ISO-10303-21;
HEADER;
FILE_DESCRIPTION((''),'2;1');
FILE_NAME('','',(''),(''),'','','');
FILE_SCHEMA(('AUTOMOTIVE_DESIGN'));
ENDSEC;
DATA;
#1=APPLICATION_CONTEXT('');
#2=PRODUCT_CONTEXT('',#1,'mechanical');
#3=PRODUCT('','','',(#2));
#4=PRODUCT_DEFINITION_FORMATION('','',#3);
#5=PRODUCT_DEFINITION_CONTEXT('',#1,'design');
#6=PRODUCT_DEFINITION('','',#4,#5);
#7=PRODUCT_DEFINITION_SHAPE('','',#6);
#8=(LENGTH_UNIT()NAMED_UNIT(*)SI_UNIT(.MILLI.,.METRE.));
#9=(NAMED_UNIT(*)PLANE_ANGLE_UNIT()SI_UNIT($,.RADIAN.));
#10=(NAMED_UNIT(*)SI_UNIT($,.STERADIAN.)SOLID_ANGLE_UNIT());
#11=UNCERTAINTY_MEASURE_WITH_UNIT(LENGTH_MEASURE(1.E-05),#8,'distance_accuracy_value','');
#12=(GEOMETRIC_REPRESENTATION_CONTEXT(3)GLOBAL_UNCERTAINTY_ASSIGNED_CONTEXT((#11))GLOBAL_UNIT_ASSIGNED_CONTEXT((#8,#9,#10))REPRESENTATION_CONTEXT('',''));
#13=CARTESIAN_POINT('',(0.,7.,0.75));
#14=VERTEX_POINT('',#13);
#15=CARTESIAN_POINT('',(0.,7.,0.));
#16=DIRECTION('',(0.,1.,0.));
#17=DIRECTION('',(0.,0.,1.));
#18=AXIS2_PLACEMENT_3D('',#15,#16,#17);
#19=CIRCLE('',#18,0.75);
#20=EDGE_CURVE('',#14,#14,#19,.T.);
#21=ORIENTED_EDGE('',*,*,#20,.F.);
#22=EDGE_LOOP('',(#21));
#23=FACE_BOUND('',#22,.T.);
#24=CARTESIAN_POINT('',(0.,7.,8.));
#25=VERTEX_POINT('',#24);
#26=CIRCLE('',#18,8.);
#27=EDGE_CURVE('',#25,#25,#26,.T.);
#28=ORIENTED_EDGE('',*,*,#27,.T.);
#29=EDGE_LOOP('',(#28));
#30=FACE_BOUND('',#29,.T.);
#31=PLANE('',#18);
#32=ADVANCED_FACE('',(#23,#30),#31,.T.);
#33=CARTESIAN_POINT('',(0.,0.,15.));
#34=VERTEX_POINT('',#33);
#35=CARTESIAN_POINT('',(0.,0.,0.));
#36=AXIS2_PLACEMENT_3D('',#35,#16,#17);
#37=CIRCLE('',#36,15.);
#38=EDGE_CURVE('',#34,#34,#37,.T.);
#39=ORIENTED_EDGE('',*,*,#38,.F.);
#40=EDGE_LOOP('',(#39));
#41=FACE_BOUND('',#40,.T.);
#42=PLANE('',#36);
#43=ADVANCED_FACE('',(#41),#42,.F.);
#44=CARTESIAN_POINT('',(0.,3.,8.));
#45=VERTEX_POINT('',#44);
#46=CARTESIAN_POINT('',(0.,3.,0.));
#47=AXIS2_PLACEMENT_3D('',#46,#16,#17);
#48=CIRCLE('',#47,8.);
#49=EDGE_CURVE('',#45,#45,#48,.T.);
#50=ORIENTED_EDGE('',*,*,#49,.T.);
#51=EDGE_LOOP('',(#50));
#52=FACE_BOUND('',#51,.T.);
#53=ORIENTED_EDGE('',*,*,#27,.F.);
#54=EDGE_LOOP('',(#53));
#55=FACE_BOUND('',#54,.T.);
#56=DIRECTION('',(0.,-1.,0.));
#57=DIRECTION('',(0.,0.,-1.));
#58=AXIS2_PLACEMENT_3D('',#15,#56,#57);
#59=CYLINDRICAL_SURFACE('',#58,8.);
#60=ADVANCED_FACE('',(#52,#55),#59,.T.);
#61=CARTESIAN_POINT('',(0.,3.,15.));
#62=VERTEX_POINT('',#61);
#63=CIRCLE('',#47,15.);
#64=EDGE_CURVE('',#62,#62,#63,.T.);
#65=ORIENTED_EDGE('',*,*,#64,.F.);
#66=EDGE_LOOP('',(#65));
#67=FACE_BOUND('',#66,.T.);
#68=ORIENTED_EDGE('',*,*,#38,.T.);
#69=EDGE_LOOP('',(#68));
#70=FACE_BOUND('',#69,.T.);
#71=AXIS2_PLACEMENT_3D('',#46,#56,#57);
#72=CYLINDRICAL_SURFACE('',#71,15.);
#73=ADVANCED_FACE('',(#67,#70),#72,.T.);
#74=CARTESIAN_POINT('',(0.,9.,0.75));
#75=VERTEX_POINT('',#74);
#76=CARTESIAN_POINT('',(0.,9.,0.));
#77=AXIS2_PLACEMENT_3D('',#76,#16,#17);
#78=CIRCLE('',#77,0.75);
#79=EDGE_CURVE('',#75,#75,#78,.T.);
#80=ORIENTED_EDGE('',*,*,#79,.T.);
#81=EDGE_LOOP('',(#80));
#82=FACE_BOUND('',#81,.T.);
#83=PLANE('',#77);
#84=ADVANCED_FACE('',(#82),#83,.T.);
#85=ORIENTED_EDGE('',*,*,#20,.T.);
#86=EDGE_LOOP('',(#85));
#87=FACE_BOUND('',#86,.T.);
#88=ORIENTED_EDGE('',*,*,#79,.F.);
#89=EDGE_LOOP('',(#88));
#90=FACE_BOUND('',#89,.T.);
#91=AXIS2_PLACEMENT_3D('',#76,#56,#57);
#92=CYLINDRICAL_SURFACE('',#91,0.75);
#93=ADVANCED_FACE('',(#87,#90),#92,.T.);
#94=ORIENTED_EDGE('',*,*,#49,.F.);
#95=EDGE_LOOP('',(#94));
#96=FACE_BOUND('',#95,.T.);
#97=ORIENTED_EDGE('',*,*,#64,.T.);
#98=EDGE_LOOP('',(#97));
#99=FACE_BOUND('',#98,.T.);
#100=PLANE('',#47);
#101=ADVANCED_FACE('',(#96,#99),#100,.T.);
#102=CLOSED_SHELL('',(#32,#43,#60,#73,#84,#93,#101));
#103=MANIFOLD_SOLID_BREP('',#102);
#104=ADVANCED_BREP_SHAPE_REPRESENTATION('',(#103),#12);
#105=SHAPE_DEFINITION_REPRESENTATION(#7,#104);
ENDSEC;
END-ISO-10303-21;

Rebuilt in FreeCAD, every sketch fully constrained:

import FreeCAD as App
import Part
import Sketcher

doc = App.newDocument("Part")
body = doc.addObject("PartDesign::Body", "Body")

# Sketch on XZ plane
sketch1 = body.newObject("Sketcher::SketchObject", "Sketch")
sketch1.AttachmentSupport = (doc.getObject("XZ_Plane"), [""])
sketch1.MapMode = "FlatFace"
sketch1.addGeometry(Part.Circle(App.Vector(0, 0, 0), App.Vector(0, 0, 1), 15), False)
sketch1.addConstraint([
    Sketcher.Constraint("Coincident", 0, 3, -1, 1),
    Sketcher.Constraint("Diameter", 0, 30.0),
])
pad1 = body.newObject("PartDesign::Pad", "Pad")
pad1.Profile = sketch1
pad1.Length = 3
pad1.Reversed = True

# Sketch on XZ plane
sketch2 = body.newObject("Sketcher::SketchObject", "Sketch001")
sketch2.AttachmentSupport = (doc.getObject("XZ_Plane"), [""])
sketch2.MapMode = "FlatFace"
sketch2.AttachmentOffset = App.Placement(App.Vector(0, 0, -3), App.Rotation())
sketch2.addGeometry(Part.Circle(App.Vector(0, 0, 0), App.Vector(0, 0, 1), 8), False)
sketch2.addConstraint([
    Sketcher.Constraint("Coincident", 0, 3, -1, 1),
    Sketcher.Constraint("Diameter", 0, 16.0),
])
pad2 = body.newObject("PartDesign::Pad", "Pad001")
pad2.Profile = sketch2
pad2.Length = 4
pad2.Reversed = True

# Sketch on XZ plane
sketch3 = body.newObject("Sketcher::SketchObject", "Sketch002")
sketch3.AttachmentSupport = (doc.getObject("XZ_Plane"), [""])
sketch3.MapMode = "FlatFace"
sketch3.AttachmentOffset = App.Placement(App.Vector(0, 0, -7), App.Rotation())
sketch3.addGeometry(Part.Circle(App.Vector(0, 0, 0), App.Vector(0, 0, 1), 0.75), False)
sketch3.addConstraint([
    Sketcher.Constraint("Coincident", 0, 3, -1, 1),
    Sketcher.Constraint("Diameter", 0, 1.5),
])
pad3 = body.newObject("PartDesign::Pad", "Pad002")
pad3.Profile = sketch3
pad3.Length = 2
pad3.Reversed = True

doc.recompute()
